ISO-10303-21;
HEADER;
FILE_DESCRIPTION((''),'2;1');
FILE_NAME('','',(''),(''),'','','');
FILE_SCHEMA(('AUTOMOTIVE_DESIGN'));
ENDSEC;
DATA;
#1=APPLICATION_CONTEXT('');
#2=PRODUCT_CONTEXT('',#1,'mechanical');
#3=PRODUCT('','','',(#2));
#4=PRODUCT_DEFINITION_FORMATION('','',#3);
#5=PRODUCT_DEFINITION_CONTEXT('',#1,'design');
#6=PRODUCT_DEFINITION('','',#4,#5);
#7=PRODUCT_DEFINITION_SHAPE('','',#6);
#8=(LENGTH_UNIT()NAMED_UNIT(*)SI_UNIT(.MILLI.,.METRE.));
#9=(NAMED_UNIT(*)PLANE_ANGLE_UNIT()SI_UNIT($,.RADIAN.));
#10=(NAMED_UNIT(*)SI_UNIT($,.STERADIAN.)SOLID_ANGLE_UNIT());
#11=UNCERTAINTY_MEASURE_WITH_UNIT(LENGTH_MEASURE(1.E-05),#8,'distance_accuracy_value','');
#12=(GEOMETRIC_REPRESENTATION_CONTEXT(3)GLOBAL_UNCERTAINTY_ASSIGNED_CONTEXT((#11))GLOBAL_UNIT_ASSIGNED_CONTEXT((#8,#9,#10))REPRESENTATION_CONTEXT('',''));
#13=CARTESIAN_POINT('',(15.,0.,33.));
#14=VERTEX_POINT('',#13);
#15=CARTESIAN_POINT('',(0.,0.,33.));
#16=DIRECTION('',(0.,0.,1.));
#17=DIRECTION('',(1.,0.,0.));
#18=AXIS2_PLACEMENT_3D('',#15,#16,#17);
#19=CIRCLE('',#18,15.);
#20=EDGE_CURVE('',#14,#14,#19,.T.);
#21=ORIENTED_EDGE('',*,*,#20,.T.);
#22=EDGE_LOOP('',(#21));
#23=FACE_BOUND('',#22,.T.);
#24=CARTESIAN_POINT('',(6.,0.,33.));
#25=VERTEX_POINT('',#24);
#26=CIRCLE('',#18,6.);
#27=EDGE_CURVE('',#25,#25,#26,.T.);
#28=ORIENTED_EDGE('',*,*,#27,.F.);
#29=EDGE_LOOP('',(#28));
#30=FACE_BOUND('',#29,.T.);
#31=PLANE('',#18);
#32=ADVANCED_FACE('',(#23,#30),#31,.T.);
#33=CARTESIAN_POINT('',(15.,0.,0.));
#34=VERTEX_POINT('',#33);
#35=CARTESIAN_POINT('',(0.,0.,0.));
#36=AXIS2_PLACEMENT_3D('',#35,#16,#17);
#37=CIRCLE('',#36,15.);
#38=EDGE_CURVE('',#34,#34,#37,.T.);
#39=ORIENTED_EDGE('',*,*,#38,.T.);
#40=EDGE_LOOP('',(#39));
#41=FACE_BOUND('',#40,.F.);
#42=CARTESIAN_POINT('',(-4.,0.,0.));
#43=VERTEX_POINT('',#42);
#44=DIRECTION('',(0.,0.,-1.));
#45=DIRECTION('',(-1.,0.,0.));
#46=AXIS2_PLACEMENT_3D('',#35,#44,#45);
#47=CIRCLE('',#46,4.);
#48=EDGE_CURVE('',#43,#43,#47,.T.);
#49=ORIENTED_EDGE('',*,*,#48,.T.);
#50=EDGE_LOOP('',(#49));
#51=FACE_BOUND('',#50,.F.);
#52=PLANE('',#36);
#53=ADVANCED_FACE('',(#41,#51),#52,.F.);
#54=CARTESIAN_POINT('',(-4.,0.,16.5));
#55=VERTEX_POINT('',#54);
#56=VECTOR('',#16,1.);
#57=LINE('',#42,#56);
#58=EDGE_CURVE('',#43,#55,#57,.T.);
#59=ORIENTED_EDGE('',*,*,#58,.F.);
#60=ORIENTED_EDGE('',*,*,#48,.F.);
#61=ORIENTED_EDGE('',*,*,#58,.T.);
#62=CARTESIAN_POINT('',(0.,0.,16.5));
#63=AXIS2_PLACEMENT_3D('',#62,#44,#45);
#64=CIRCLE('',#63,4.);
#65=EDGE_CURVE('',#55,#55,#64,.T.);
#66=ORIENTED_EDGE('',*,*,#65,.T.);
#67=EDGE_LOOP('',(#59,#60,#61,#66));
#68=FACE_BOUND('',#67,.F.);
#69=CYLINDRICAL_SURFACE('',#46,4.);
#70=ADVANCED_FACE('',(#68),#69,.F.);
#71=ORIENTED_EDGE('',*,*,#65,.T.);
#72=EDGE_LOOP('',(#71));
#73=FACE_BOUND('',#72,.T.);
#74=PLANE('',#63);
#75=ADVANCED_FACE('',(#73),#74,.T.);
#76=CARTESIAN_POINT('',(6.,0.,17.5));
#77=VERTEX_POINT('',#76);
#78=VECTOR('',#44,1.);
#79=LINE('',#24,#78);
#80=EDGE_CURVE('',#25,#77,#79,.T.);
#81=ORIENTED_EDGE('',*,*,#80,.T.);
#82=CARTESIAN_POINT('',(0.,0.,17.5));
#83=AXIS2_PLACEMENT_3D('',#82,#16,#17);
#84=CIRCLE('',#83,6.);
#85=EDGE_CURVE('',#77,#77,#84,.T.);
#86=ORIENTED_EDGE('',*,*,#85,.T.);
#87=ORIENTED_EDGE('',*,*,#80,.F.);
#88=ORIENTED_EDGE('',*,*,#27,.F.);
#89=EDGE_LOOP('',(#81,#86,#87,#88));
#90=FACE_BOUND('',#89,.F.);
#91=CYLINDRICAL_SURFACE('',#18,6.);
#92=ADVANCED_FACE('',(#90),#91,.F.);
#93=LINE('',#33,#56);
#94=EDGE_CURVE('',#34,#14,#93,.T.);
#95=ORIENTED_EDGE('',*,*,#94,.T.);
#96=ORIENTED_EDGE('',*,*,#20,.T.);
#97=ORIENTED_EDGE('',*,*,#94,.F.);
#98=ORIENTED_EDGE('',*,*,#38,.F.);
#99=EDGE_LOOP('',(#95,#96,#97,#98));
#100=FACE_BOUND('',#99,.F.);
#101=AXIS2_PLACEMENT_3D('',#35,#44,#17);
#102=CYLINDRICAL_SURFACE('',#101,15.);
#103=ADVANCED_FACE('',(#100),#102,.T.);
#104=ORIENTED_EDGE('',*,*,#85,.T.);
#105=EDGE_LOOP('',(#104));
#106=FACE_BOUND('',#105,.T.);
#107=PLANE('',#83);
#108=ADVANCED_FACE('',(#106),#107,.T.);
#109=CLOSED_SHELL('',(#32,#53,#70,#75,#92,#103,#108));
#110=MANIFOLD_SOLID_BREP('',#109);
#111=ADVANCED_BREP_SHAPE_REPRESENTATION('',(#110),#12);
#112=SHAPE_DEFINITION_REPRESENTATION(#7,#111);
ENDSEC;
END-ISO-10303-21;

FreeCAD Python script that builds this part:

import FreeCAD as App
import Part
import Sketcher
from FreeCAD import Vector
Q = App.Units.Quantity

doc = App.newDocument("Part")
body = doc.addObject("PartDesign::Body", "Body")

sketch1 = body.newObject("Sketcher::SketchObject", "Sketch")
sketch1.AttachmentSupport = (doc.getObject("XY_Plane"), [""])
sketch1.MapMode = "FlatFace"
sketch1.addGeometry(Part.Circle(Vector(0, 0, 0), Vector(0, 0, 1), 15), False)
sketch1.addConstraint([
    Sketcher.Constraint("Coincident", 0, 3, -1, 1),
    Sketcher.Constraint("Diameter", 0, Q("30 mm")),
])
pad1 = body.newObject("PartDesign::Pad", "Pad")
pad1.Profile = sketch1
pad1.Length = 33

sketch2 = body.newObject("Sketcher::SketchObject", "Sketch001")
sketch2.AttachmentSupport = (doc.getObject("XY_Plane"), [""])
sketch2.MapMode = "FlatFace"
sketch2.AttachmentOffset = App.Placement(Vector(0, 0, 33), App.Rotation())
sketch2.addGeometry(Part.Circle(Vector(0, 0, 0), Vector(0, 0, 1), 6), False)
sketch2.addConstraint([
    Sketcher.Constraint("Coincident", 0, 3, -1, 1),
    Sketcher.Constraint("Diameter", 0, Q("12 mm")),
])
pocket1 = body.newObject("PartDesign::Pocket", "Pocket")
pocket1.Profile = sketch2
pocket1.Length = 15.5

sketch3 = body.newObject("Sketcher::SketchObject", "Sketch002")
sketch3.AttachmentSupport = (doc.getObject("XY_Plane"), [""])
sketch3.MapMode = "FlatFace"
sketch3.addGeometry(Part.Circle(Vector(0, 0, 0), Vector(0, 0, 1), 4), False)
sketch3.addConstraint([
    Sketcher.Constraint("Coincident", 0, 3, -1, 1),
    Sketcher.Constraint("Diameter", 0, Q("8 mm")),
])
pocket2 = body.newObject("PartDesign::Pocket", "Pocket001")
pocket2.Profile = sketch3
pocket2.Length = 16.5
pocket2.Reversed = True

doc.recompute()
